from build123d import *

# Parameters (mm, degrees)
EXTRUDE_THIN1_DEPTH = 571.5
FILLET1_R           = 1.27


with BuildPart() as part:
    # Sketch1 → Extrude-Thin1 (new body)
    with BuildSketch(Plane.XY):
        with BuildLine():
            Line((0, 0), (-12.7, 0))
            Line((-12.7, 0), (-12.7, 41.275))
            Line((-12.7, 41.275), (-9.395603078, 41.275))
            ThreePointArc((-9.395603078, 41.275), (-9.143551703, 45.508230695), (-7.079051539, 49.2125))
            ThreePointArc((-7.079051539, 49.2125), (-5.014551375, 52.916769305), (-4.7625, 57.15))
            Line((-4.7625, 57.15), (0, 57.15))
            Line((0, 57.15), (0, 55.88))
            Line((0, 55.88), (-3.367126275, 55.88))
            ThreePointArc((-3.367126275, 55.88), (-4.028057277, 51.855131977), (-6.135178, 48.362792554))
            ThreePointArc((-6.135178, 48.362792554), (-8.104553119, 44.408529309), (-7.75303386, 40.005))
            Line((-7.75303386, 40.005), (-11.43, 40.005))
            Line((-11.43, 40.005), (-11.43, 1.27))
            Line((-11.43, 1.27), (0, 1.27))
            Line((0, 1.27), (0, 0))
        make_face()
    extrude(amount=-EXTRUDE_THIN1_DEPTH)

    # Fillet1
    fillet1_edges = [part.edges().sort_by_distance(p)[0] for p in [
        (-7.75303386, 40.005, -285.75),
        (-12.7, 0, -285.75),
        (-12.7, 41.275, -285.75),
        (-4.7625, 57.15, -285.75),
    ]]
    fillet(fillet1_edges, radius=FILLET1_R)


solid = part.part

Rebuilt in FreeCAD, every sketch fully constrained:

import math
import FreeCAD as App
import Part
import Sketcher

V = App.Vector
Q = App.Units.Quantity


def edges_at(feature, points):
    """Names of the edges that pass closest to the given points."""
    edges = feature.Shape.Edges
    near = lambda p: min(range(len(edges)), key=lambda i: edges[i].distToShape(Part.Vertex(*p))[0])
    return sorted({f"Edge{near(p) + 1}" for p in points})

doc = App.newDocument("Part")
body = doc.addObject("PartDesign::Body", "Body")

sketch1 = doc.addObject("Sketcher::SketchObject", "Sketch")
body.addObject(sketch1)
sketch1.AttachmentSupport = (doc.XY_Plane, [""])
sketch1.MapMode = "FlatFace"
sketch1.addGeometry([
    Part.LineSegment(V(-12.7, 0, 0), V(0, 0, 0)),
    Part.LineSegment(V(0, 0, 0), V(0, 1.3, 0)),
    Part.LineSegment(V(0, 1.3, 0), V(-11.4, 1.3, 0)),
    Part.LineSegment(V(-11.4, 1.3, 0), V(-11.4, 40, 0)),
    Part.LineSegment(V(-11.4, 40, 0), V(-7.8, 40, 0)),
    Part.ArcOfCircle(Part.Circle(V(0, 42.8, 0), V(0, 0, 1), 8.3), math.radians(138), math.radians(200)),
    Part.ArcOfCircle(Part.Circle(V(-14.2, 55.6, 0), V(0, 0, 1), 10.8), math.radians(-42), math.radians(2)),
    Part.LineSegment(V(-3.4, 55.9, 0), V(0, 55.9, 0)),
    Part.LineSegment(V(0, 55.9, 0), V(0, 57.1, 0)),
    Part.LineSegment(V(0, 57.1, 0), V(-4.8, 57.1, 0)),
    Part.ArcOfCircle(Part.Circle(V(-14.2, 55.6, 0), V(0, 0, 1), 9.5), math.radians(-42), math.radians(9)),
    Part.ArcOfCircle(Part.Circle(V(0, 42.8, 0), V(0, 0, 1), 9.5), math.radians(138), math.radians(189)),
    Part.LineSegment(V(-9.4, 41.3, 0), V(-12.7, 41.3, 0)),
    Part.LineSegment(V(-12.7, 41.3, 0), V(-12.7, 0, 0)),
], False)
sketch1.addConstraint([
    Sketcher.Constraint("Coincident", 0, 2, 1, 1),
    Sketcher.Constraint("Coincident", 1, 2, 2, 1),
    Sketcher.Constraint("Coincident", 2, 2, 3, 1),
    Sketcher.Constraint("Coincident", 3, 2, 4, 1),
    Sketcher.Constraint("Coincident", 4, 2, 5, 2),
    Sketcher.Constraint("Tangent", 5, 1, 6, 1),
    Sketcher.Constraint("Coincident", 6, 2, 7, 1),
    Sketcher.Constraint("Coincident", 7, 2, 8, 1),
    Sketcher.Constraint("Coincident", 8, 2, 9, 1),
    Sketcher.Constraint("Coincident", 9, 2, 10, 2),
    Sketcher.Constraint("Tangent", 10, 1, 11, 1),
    Sketcher.Constraint("Coincident", 11, 2, 12, 1),
    Sketcher.Constraint("Coincident", 12, 2, 13, 1),
    Sketcher.Constraint("Coincident", 13, 2, 0, 1),
    Sketcher.Constraint("Horizontal", 0),
    Sketcher.Constraint("Vertical", 1),
    Sketcher.Constraint("Horizontal", 2),
    Sketcher.Constraint("Vertical", 3),
    Sketcher.Constraint("Horizontal", 4),
    Sketcher.Constraint("Horizontal", 7),
    Sketcher.Constraint("Vertical", 8),
    Sketcher.Constraint("Horizontal", 9),
    Sketcher.Constraint("Horizontal", 12),
    Sketcher.Constraint("Vertical", 13),
    Sketcher.Constraint("Coincident", 0, 2, -1, 1),
    Sketcher.Constraint("Coincident", 10, 3, 6, 3),
    Sketcher.Constraint("Coincident", 11, 3, 5, 3),
    Sketcher.Constraint("Equal", 10, 11),
    Sketcher.Constraint("PointOnObject", 5, 3, -2),
    Sketcher.Constraint("PointOnObject", 7, 2, -2),
    Sketcher.Constraint("Equal", 1, 8),
    Sketcher.Constraint("DistanceX", 0, 1, 0, 2, Q("0.5 in")),
    Sketcher.Constraint("Radius", 5, Q("0.325 in")),
    Sketcher.Constraint("Radius", 6, Q("0.425 in")),
    Sketcher.Constraint("DistanceX", 2, 2, 2, 1, Q("0.45 in")),
    Sketcher.Constraint("DistanceY", 1, 1, 1, 2, Q("0.05 in")),
    Sketcher.Constraint("DistanceY", -1, 1, 6, 2, Q("2.2 in")),
    Sketcher.Constraint("DistanceX", 9, 2, 9, 1, Q("0.1875 in")),
    Sketcher.Constraint("DistanceY", 3, 1, 3, 2, Q("1.525 in")),
    Sketcher.Constraint("DistanceY", 13, 2, 13, 1, Q("1.625 in")),
    Sketcher.Constraint("DistanceY", -1, 1, 10, 1, Q("1.9375 in")),
])
pad1 = doc.addObject("PartDesign::Pad", "Pad")
body.addObject(pad1)
pad1.Profile = sketch1
pad1.Length = Q("22.5 in")
pad1.Reversed = True
doc.recompute()

fillet = doc.addObject("PartDesign::Fillet", "Fillet")
body.addObject(fillet)
fillet.Base = (pad1, edges_at(pad1, [
    (-7.753, 40.005, -285.75),
    (-12.7, 0, -285.75),
    (-12.7, 41.275, -285.75),
    (-4.763, 57.15, -285.75),
]))
fillet.Radius = Q("0.05 in")

doc.recompute()
